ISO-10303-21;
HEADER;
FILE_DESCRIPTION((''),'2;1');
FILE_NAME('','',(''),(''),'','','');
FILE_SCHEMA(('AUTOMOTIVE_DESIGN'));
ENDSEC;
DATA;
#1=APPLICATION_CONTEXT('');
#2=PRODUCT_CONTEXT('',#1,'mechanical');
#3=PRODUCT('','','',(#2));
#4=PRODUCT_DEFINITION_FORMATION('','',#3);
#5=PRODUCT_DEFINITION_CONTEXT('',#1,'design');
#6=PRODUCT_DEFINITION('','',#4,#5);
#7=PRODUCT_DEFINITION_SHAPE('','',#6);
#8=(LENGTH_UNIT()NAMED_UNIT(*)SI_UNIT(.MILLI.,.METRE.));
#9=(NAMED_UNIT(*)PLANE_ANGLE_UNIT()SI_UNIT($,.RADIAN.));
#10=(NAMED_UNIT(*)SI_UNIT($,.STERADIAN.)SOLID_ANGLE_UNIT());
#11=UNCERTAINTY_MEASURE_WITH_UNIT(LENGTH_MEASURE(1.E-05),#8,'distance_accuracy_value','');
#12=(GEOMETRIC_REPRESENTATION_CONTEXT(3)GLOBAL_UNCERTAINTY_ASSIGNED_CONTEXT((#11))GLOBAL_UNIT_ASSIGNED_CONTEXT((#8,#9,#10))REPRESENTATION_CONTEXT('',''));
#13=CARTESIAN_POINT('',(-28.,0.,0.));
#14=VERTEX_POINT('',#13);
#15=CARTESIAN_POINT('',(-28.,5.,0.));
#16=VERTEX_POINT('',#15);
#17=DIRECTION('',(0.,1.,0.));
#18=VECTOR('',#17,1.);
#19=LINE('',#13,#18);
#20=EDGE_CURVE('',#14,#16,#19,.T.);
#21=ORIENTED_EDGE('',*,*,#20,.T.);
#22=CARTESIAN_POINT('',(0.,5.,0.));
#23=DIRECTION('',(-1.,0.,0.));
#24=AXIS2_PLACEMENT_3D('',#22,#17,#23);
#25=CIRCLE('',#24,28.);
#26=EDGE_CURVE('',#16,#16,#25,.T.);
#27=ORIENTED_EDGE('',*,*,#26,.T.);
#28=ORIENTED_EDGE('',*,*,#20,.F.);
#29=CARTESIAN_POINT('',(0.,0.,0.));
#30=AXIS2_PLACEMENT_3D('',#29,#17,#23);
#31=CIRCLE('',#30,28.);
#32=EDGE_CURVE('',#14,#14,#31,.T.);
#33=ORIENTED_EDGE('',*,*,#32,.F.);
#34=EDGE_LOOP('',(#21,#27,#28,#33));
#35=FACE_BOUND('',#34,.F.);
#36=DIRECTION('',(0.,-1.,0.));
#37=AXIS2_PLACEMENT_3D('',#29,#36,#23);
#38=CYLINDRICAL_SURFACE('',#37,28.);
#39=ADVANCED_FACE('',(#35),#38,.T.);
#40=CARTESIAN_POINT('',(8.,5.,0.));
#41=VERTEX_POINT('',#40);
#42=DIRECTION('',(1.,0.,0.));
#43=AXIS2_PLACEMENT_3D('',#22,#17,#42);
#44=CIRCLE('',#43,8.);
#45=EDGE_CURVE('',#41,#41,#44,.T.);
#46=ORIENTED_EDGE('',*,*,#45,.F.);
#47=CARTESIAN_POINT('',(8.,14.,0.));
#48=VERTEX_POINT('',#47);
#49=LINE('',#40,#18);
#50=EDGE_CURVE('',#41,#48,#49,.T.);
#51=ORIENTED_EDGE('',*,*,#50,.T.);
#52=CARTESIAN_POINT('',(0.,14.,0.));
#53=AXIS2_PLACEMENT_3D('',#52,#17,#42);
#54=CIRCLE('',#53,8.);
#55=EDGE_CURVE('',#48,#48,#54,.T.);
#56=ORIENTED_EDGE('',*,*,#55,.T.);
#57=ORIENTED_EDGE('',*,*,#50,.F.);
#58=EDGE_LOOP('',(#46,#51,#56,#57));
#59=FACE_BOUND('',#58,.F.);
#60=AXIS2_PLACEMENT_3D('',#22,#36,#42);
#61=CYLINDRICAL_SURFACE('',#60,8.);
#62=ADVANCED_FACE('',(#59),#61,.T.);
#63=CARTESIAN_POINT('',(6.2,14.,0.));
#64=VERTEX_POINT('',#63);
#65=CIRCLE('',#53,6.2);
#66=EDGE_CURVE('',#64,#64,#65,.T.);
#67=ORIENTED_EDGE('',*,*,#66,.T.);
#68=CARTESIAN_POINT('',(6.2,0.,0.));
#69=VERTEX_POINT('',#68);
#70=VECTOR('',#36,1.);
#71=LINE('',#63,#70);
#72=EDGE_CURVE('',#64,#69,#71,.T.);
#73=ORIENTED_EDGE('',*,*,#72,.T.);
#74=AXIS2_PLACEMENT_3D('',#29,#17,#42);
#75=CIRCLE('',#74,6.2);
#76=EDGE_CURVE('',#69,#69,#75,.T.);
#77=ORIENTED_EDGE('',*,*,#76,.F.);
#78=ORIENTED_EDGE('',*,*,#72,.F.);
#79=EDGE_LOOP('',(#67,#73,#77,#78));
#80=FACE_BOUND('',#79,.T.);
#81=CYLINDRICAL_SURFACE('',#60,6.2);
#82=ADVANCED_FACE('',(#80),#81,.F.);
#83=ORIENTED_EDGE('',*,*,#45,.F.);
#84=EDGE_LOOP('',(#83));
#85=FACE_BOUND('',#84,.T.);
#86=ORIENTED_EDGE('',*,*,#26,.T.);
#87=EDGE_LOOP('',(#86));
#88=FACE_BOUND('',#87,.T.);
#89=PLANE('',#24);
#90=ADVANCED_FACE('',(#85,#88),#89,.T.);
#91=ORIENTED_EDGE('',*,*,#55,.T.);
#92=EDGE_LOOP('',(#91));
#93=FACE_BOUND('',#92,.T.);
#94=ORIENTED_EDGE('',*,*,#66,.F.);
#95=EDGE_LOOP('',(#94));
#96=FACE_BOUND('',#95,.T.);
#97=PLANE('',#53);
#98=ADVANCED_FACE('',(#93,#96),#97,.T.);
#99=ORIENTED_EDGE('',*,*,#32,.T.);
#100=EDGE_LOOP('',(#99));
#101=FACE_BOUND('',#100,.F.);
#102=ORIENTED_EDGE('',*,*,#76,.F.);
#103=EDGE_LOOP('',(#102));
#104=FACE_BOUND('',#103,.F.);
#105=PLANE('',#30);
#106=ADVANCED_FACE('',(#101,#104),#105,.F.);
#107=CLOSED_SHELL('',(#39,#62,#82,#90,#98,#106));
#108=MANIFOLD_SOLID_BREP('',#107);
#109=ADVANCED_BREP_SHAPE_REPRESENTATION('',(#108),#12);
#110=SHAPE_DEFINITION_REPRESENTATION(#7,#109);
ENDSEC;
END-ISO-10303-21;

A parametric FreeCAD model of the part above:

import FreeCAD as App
import Part
import Sketcher

doc = App.newDocument("Part")
params = doc.addObject("Spreadsheet::Sheet", "Params")
for row, (alias, value) in enumerate([
    ("sketch1_diameter", "56 mm"),
    ("pad1_length", "5 mm"),
    ("sketch2_diameter", "12.4 mm"),
    ("pocket1_length", "5 mm"),
    ("sketch3_diameter", "16 mm"),
    ("sketch3_diameter2", "12.4 mm"),
    ("pad2_length", "9 mm"),
], start=1):
    params.set(f"A{row}", alias)
    params.set(f"B{row}", "=" + value)
    params.setAlias(f"B{row}", alias)

body = doc.addObject("PartDesign::Body", "Body")

sketch1 = body.newObject("Sketcher::SketchObject", "Sketch")
sketch1.AttachmentSupport = (doc.getObject("XZ_Plane"), [""])
sketch1.MapMode = "FlatFace"
sketch1.addGeometry(Part.Circle(App.Vector(0, 0, 0), App.Vector(0, 0, 1), 28), False)
sketch1.addConstraint([
    Sketcher.Constraint("Coincident", 0, 3, -1, 1),
    Sketcher.Constraint("Diameter", 0, 56.0),
])
sketch1.setExpression("Constraints[1]", "Params.sketch1_diameter")
pad1 = body.newObject("PartDesign::Pad", "Pad")
pad1.Profile = sketch1
pad1.setExpression("Length", "Params.pad1_length")
pad1.Reversed = True

sketch2 = body.newObject("Sketcher::SketchObject", "Sketch001")
sketch2.AttachmentSupport = (doc.getObject("XZ_Plane"), [""])
sketch2.MapMode = "FlatFace"
sketch2.AttachmentOffset = App.Placement(App.Vector(0, 0, -5), App.Rotation())
sketch2.addGeometry(Part.Circle(App.Vector(0, 0, 0), App.Vector(0, 0, 1), 6), False)
sketch2.addConstraint([
    Sketcher.Constraint("Coincident", 0, 3, -1, 1),
    Sketcher.Constraint("Diameter", 0, 12.4),
])
sketch2.setExpression("Constraints[1]", "Params.sketch2_diameter")
pocket1 = body.newObject("PartDesign::Pocket", "Pocket")
pocket1.Profile = sketch2
pocket1.setExpression("Length", "Params.pocket1_length")
pocket1.Reversed = True

sketch3 = body.newObject("Sketcher::SketchObject", "Sketch002")
sketch3.AttachmentSupport = (doc.getObject("XZ_Plane"), [""])
sketch3.MapMode = "FlatFace"
sketch3.AttachmentOffset = App.Placement(App.Vector(0, 0, -5), App.Rotation())
sketch3.addGeometry([
    Part.Circle(App.Vector(0, 0, 0), App.Vector(0, 0, 1), 8),
    Part.Circle(App.Vector(0, 0, 0), App.Vector(0, 0, 1), 6),
], False)
sketch3.addConstraint([
    Sketcher.Constraint("Coincident", 0, 3, -1, 1),
    Sketcher.Constraint("Coincident", 1, 3, -1, 1),
    Sketcher.Constraint("Diameter", 0, 16.0),
    Sketcher.Constraint("Diameter", 1, 12.4),
])
sketch3.setExpression("Constraints[2]", "Params.sketch3_diameter")
sketch3.setExpression("Constraints[3]", "Params.sketch3_diameter2")
pad2 = body.newObject("PartDesign::Pad", "Pad001")
pad2.Profile = sketch3
pad2.setExpression("Length", "Params.pad2_length")
pad2.Reversed = True

doc.recompute()
